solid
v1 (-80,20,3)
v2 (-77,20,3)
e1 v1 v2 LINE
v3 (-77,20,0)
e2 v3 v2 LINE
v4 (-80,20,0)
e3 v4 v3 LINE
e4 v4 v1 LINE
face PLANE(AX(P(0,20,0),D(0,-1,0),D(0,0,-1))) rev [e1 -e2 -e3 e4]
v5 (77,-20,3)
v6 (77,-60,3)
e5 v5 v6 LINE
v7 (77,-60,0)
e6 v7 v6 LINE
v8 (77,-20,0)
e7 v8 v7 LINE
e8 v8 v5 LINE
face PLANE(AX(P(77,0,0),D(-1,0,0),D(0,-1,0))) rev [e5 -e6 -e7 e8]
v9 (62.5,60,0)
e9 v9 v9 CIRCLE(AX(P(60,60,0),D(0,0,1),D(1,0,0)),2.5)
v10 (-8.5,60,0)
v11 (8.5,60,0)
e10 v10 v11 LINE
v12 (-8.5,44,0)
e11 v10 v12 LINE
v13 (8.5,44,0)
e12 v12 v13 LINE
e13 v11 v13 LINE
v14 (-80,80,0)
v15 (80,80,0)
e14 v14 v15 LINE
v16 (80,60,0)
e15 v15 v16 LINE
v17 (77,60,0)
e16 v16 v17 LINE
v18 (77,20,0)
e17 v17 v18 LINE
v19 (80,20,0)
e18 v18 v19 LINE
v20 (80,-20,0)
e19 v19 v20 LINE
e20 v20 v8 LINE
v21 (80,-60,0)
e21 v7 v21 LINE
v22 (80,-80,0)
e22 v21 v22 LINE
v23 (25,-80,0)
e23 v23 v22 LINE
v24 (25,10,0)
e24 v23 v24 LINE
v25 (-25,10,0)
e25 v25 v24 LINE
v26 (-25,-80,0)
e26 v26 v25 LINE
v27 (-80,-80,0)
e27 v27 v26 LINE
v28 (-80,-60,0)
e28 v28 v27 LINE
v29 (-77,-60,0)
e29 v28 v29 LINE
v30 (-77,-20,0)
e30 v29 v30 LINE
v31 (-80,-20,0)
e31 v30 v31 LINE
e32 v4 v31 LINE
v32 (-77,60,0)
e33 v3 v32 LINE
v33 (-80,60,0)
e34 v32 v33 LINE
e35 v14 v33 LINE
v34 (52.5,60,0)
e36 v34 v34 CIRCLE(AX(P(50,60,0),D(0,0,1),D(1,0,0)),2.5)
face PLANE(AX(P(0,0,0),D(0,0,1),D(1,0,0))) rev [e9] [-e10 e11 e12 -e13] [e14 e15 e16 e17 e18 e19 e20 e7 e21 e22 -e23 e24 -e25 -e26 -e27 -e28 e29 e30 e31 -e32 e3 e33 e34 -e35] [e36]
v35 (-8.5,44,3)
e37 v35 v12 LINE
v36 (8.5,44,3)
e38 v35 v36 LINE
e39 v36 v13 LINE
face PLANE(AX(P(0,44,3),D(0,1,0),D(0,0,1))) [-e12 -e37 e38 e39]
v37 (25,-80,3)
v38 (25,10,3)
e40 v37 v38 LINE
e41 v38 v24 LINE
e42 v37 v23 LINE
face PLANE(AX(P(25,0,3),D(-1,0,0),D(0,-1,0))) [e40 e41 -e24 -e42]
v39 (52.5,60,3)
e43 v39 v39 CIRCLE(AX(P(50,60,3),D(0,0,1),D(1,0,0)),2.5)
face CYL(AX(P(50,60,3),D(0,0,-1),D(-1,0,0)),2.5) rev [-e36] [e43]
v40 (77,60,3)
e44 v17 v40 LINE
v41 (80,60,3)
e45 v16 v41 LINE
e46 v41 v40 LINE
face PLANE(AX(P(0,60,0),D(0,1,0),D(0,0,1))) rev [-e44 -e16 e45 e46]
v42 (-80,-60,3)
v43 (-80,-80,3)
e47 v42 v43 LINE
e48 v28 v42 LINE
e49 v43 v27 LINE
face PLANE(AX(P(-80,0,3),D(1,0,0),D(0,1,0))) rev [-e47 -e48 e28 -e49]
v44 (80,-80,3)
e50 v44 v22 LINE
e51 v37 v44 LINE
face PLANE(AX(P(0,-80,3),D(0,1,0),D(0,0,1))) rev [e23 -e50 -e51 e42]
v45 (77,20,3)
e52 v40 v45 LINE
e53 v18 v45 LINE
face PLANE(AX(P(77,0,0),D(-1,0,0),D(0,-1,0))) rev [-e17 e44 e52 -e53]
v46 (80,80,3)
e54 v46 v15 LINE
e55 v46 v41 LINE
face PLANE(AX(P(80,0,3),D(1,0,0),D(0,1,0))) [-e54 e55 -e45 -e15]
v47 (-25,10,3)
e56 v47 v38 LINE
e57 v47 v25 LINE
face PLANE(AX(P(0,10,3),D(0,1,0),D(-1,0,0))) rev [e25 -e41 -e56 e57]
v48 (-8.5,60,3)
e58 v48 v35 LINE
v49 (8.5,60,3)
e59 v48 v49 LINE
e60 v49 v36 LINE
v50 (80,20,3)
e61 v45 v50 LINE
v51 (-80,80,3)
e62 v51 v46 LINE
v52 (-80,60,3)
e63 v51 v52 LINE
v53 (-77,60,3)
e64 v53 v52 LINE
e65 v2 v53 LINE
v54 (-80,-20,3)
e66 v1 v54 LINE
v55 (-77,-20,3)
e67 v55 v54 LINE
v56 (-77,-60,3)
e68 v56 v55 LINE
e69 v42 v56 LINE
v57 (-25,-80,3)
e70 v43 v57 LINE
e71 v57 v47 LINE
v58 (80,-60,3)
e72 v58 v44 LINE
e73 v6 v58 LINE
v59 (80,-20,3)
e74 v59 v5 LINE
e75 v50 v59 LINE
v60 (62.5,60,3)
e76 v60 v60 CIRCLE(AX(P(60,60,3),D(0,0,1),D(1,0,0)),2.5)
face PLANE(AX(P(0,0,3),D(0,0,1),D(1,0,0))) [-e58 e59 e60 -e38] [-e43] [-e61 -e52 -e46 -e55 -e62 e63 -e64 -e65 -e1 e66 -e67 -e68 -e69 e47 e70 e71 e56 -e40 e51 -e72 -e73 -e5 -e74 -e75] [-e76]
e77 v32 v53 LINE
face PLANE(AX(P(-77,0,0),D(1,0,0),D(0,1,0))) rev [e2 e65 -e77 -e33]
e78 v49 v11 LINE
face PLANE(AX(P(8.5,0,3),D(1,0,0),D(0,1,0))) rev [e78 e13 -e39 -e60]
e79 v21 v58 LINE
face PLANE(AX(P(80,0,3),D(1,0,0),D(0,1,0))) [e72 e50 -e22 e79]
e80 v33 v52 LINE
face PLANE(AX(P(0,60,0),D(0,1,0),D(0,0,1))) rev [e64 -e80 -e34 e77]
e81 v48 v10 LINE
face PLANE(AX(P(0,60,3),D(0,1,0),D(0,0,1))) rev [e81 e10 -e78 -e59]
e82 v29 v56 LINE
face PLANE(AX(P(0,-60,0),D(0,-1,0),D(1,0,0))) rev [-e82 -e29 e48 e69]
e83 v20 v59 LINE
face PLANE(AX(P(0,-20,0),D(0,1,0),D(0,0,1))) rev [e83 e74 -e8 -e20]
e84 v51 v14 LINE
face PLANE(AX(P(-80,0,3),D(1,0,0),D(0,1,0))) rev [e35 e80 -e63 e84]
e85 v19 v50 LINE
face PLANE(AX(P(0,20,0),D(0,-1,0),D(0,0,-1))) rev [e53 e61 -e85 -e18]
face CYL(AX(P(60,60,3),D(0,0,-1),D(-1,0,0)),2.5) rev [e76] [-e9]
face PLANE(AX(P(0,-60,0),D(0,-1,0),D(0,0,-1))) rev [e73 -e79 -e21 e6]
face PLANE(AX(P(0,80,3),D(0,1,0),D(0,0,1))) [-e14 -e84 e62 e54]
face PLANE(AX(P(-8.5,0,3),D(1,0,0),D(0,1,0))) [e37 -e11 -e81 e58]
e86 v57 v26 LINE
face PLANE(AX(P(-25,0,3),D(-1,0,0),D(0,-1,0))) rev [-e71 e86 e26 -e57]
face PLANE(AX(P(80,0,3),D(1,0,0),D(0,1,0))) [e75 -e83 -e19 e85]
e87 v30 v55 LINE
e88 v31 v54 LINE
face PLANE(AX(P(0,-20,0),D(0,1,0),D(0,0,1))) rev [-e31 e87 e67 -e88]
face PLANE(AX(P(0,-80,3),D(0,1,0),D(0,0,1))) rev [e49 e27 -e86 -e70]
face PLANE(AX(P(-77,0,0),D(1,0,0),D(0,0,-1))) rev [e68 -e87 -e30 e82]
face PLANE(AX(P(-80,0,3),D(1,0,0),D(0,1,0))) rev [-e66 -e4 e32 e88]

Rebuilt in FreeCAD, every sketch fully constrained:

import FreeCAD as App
import Part
import Sketcher

V = App.Vector

doc = App.newDocument("Part")
body = doc.addObject("PartDesign::Body", "Body")

# Sketch on XY plane
sketch1 = body.newObject("Sketcher::SketchObject", "Sketch")
sketch1.AttachmentSupport = (doc.getObject("XY_Plane"), [""])
sketch1.MapMode = "FlatFace"
sketch1.addGeometry([
    Part.LineSegment(V(80, 80, 0), V(-80, 80, 0)),  # 0
    Part.LineSegment(V(-80, 80, 0), V(-80, -80, 0)),  # 1
    Part.LineSegment(V(-80, -80, 0), V(-25, -80, 0)),  # 2
    Part.LineSegment(V(-25, -80, 0), V(-25, 10, 0)),  # 3
    Part.LineSegment(V(-25, 10, 0), V(25, 10, 0)),  # 4
    Part.LineSegment(V(25, 10, 0), V(25, -80, 0)),  # 5
    Part.LineSegment(V(25, -80, 0), V(80, -80, 0)),  # 6
    Part.LineSegment(V(80, -80, 0), V(80, 80, 0)),  # 7
    Part.LineSegment(V(8.5, 44, 0), V(-8.5, 44, 0)),  # 8
    Part.LineSegment(V(-8.5, 44, 0), V(-8.5, 60, 0)),  # 9
    Part.LineSegment(V(-8.5, 60, 0), V(8.5, 60, 0)),  # 10
    Part.LineSegment(V(8.5, 60, 0), V(8.5, 44, 0)),  # 11
    Part.Circle(V(50, 60, 0), V(0, 0, 1), 2.5),  # 12
    Part.Circle(V(60, 60, 0), V(0, 0, 1), 2.5),  # 13
], False)
sketch1.addConstraint([
    Sketcher.Constraint("Coincident", 0, 2, 1, 1),
    Sketcher.Constraint("Coincident", 1, 2, 2, 1),
    Sketcher.Constraint("Coincident", 2, 2, 3, 1),
    Sketcher.Constraint("Coincident", 3, 2, 4, 1),
    Sketcher.Constraint("Coincident", 4, 2, 5, 1),
    Sketcher.Constraint("Coincident", 5, 2, 6, 1),
    Sketcher.Constraint("Coincident", 6, 2, 7, 1),
    Sketcher.Constraint("Coincident", 7, 2, 0, 1),
    Sketcher.Constraint("Coincident", 8, 2, 9, 1),
    Sketcher.Constraint("Coincident", 9, 2, 10, 1),
    Sketcher.Constraint("Coincident", 10, 2, 11, 1),
    Sketcher.Constraint("Coincident", 11, 2, 8, 1),
    Sketcher.Constraint("Horizontal", 0),
    Sketcher.Constraint("Vertical", 1),
    Sketcher.Constraint("Horizontal", 2),
    Sketcher.Constraint("Vertical", 3),
    Sketcher.Constraint("Horizontal", 4),
    Sketcher.Constraint("Vertical", 5),
    Sketcher.Constraint("Horizontal", 6),
    Sketcher.Constraint("Vertical", 7),
    Sketcher.Constraint("Horizontal", 8),
    Sketcher.Constraint("Vertical", 9),
    Sketcher.Constraint("Horizontal", 10),
    Sketcher.Constraint("Vertical", 11),
    Sketcher.Constraint("Equal", 12, 13),
    Sketcher.Constraint("Symmetric", 0, 2, 6, 2, -1, 1),
    Sketcher.Constraint("Symmetric", 2, 2, 5, 2, -2),
    Sketcher.Constraint("Horizontal", 12, 3, 13, 3),
    Sketcher.Constraint("Horizontal", 13, 3, 9, 2),
    Sketcher.Constraint("Equal", 0, 1),
    Sketcher.Constraint("Diameter", 12, 5.0),
    Sketcher.Constraint("DistanceX", 0, 2, 0, 1, 160.0),
    Sketcher.Constraint("DistanceX", 2, 1, 2, 2, 55.0),
    Sketcher.Constraint("DistanceX", 8, 2, 8, 1, 17.0),
    Sketcher.Constraint("DistanceY", 3, 1, 3, 2, 90.0),
    Sketcher.Constraint("DistanceY", 9, 1, 9, 2, 16.0),
    Sketcher.Constraint("DistanceX", -1, 1, 12, 3, 50.0),
    Sketcher.Constraint("DistanceY", -1, 1, 12, 3, 60.0),
    Sketcher.Constraint("DistanceX", -1, 1, 13, 3, 60.0),
    Sketcher.Constraint("DistanceX", 8, 2, -1, 1, 8.5),
])
pad1 = body.newObject("PartDesign::Pad", "Pad")
pad1.Profile = sketch1
pad1.Length = 3

# Sketch on XY plane
sketch2 = body.newObject("Sketcher::SketchObject", "Sketch001")
sketch2.AttachmentSupport = (doc.getObject("XY_Plane"), [""])
sketch2.MapMode = "FlatFace"
sketch2.AttachmentOffset = App.Placement(V(0, 0, 3), App.Rotation())
sketch2.addGeometry([
    Part.LineSegment(V(-80, 60, 0), V(-80, 20, 0)),  # 0
    Part.LineSegment(V(-80, 20, 0), V(-77, 20, 0)),  # 1
    Part.LineSegment(V(-77, 20, 0), V(-77, 60, 0)),  # 2
    Part.LineSegment(V(-77, 60, 0), V(-80, 60, 0)),  # 3
    Part.LineSegment(V(-80, -20, 0), V(-80, -60, 0)),  # 4
    Part.LineSegment(V(-80, -60, 0), V(-77, -60, 0)),  # 5
    Part.LineSegment(V(-77, -60, 0), V(-77, -20, 0)),  # 6
    Part.LineSegment(V(-77, -20, 0), V(-80, -20, 0)),  # 7
    Part.LineSegment(V(77, -20, 0), V(77, -60, 0)),  # 8
    Part.LineSegment(V(77, -60, 0), V(80, -60, 0)),  # 9
    Part.LineSegment(V(80, -60, 0), V(80, -20, 0)),  # 10
    Part.LineSegment(V(80, -20, 0), V(77, -20, 0)),  # 11
    Part.LineSegment(V(77, 60, 0), V(77, 20, 0)),  # 12
    Part.LineSegment(V(77, 20, 0), V(80, 20, 0)),  # 13
    Part.LineSegment(V(80, 20, 0), V(80, 60, 0)),  # 14
    Part.LineSegment(V(80, 60, 0), V(77, 60, 0)),  # 15
], False)
sketch2.addConstraint([
    Sketcher.Constraint("Coincident", 0, 2, 1, 1),
    Sketcher.Constraint("Coincident", 1, 2, 2, 1),
    Sketcher.Constraint("Coincident", 2, 2, 3, 1),
    Sketcher.Constraint("Coincident", 3, 2, 0, 1),
    Sketcher.Constraint("Coincident", 4, 2, 5, 1),
    Sketcher.Constraint("Coincident", 5, 2, 6, 1),
    Sketcher.Constraint("Coincident", 6, 2, 7, 1),
    Sketcher.Constraint("Coincident", 7, 2, 4, 1),
    Sketcher.Constraint("Coincident", 8, 2, 9, 1),
    Sketcher.Constraint("Coincident", 9, 2, 10, 1),
    Sketcher.Constraint("Coincident", 10, 2, 11, 1),
    Sketcher.Constraint("Coincident", 11, 2, 8, 1),
    Sketcher.Constraint("Coincident", 12, 2, 13, 1),
    Sketcher.Constraint("Coincident", 13, 2, 14, 1),
    Sketcher.Constraint("Coincident", 14, 2, 15, 1),
    Sketcher.Constraint("Coincident", 15, 2, 12, 1),
    Sketcher.Constraint("Vertical", 0),
    Sketcher.Constraint("Horizontal", 1),
    Sketcher.Constraint("Vertical", 2),
    Sketcher.Constraint("Horizontal", 3),
    Sketcher.Constraint("Vertical", 4),
    Sketcher.Constraint("Horizontal", 5),
    Sketcher.Constraint("Vertical", 6),
    Sketcher.Constraint("Horizontal", 7),
    Sketcher.Constraint("Vertical", 8),
    Sketcher.Constraint("Horizontal", 9),
    Sketcher.Constraint("Vertical", 10),
    Sketcher.Constraint("Horizontal", 11),
    Sketcher.Constraint("Vertical", 12),
    Sketcher.Constraint("Horizontal", 13),
    Sketcher.Constraint("Vertical", 14),
    Sketcher.Constraint("Horizontal", 15),
    Sketcher.Constraint("Symmetric", 2, 2, 8, 2, -1, 1),
    Sketcher.Constraint("Symmetric", 0, 2, 10, 2, -1, 1),
    Sketcher.Constraint("Symmetric", 6, 2, 12, 2, -1, 1),
    Sketcher.Constraint("Symmetric", 4, 2, 14, 2, -1, 1),
    Sketcher.Constraint("Symmetric", 5, 2, 8, 2, -2),
    Sketcher.Constraint("Symmetric", 7, 2, 10, 2, -2),
    Sketcher.Constraint("DistanceX", 1, 1, 1, 2, 3.0),
    Sketcher.Constraint("DistanceY", 0, 2, 0, 1, 40.0),
    Sketcher.Constraint("DistanceX", 0, 2, -1, 1, 80.0),
    Sketcher.Constraint("DistanceY", -1, 1, 0, 2, 20.0),
])
pocket1 = body.newObject("PartDesign::Pocket", "Pocket")
pocket1.Profile = sketch2
pocket1.Type = "ThroughAll"

doc.recompute()
